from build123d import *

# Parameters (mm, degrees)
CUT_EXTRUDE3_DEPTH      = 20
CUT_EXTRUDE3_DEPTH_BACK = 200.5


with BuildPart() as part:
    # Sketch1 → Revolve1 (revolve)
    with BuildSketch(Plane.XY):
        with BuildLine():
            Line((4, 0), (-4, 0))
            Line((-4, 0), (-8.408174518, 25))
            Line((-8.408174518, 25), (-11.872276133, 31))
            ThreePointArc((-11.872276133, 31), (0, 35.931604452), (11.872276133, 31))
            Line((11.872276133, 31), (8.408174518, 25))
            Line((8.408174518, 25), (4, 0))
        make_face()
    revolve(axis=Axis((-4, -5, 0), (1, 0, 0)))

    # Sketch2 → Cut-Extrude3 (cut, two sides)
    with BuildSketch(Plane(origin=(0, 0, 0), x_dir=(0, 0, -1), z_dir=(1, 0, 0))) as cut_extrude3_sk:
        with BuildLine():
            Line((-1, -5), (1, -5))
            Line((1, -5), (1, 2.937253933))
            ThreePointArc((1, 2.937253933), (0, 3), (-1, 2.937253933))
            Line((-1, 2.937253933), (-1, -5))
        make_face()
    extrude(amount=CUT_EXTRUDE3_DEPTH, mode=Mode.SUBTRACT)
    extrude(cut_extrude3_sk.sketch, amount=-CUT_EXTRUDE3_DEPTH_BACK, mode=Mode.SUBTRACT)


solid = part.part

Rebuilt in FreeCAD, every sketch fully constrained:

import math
import FreeCAD as App
import Part
import Sketcher

V = App.Vector
Q = App.Units.Quantity

doc = App.newDocument("Part")
body = doc.addObject("PartDesign::Body", "Body")

sketch1 = body.newObject("Sketcher::SketchObject", "Sketch")
sketch1.AttachmentSupport = (doc.getObject("XY_Plane"), [""])
sketch1.MapMode = "FlatFace"
sketch1.addGeometry(Part.LineSegment(V(-4, 0, 0), V(4, 0, 0)), False)
sketch1.addGeometry(Part.LineSegment(V(4, 0, 0), V(8, 25, 0)), False)
sketch1.addGeometry(Part.LineSegment(V(8, 25, 0), V(12, 31, 0)), False)
sketch1.addGeometry(Part.ArcOfCircle(Part.Circle(V(0, 19, 0), V(0, 0, 1), 17), math.radians(45), math.radians(135)), False)
sketch1.addGeometry(Part.LineSegment(V(-12, 31, 0), V(-8, 25, 0)), False)
sketch1.addGeometry(Part.LineSegment(V(-8, 25, 0), V(-4, 0, 0)), False)
sketch1.addGeometry(Part.LineSegment(V(-12, -5, 0), V(12, -5, 0)), True)
sketch1.addConstraint(Sketcher.Constraint("Coincident", 0, 2, 1, 1))
sketch1.addConstraint(Sketcher.Constraint("Coincident", 1, 2, 2, 1))
sketch1.addConstraint(Sketcher.Constraint("Coincident", 2, 2, 3, 1))
sketch1.addConstraint(Sketcher.Constraint("Coincident", 3, 2, 4, 1))
sketch1.addConstraint(Sketcher.Constraint("Coincident", 4, 2, 5, 1))
sketch1.addConstraint(Sketcher.Constraint("Coincident", 5, 2, 0, 1))
sketch1.addConstraint(Sketcher.Constraint("Horizontal", 0))
sketch1.addConstraint(Sketcher.Constraint("Horizontal", 6))
sketch1.addConstraint(Sketcher.Constraint("Symmetric", 0, 2, 5, 2, -1, 1))
sketch1.addConstraint(Sketcher.Constraint("Symmetric", 2, 2, 3, 2, -2))
sketch1.addConstraint(Sketcher.Constraint("Symmetric", 1, 2, 4, 2, -2))
sketch1.addConstraint(Sketcher.Constraint("Vertical", 3, 2, 6, 1))
sketch1.addConstraint(Sketcher.Constraint("Vertical", 2, 2, 6, 2))
sketch1.addConstraint(Sketcher.Constraint("DistanceX", 0, 1, 0, 2, Q("8 mm")))
sketch1.addConstraint(Sketcher.Constraint("Angle", 1, Q("80 deg")))
sketch1.addConstraint(Sketcher.Constraint("Angle", 2, Q("60 deg")))
sketch1.addConstraint(Sketcher.Constraint("DistanceY", -1, 1, 1, 2, Q("25 mm")))
sketch1.addConstraint(Sketcher.Constraint("DistanceY", -1, 1, 2, 2, Q("31 mm")))
sketch1.addConstraint(Sketcher.Constraint("DistanceY", 6, 1, -1, 1, Q("5 mm")))
sketch1.addConstraint(Sketcher.Constraint("Radius", 3, Q("16.756379 mm")))
revolution = body.newObject("PartDesign::Revolution", "Revolution")
revolution.Profile = sketch1
revolution.ReferenceAxis = (sketch1, ["Axis0"])
revolution.Angle = 360

sketch2 = body.newObject("Sketcher::SketchObject", "Sketch001")
sketch2.AttachmentSupport = (doc.getObject("YZ_Plane"), [""])
sketch2.MapMode = "FlatFace"
sketch2.addGeometry(Part.LineSegment(V(-5, 1, 0), V(-5, -1, 0)), False)
sketch2.addGeometry(Part.LineSegment(V(-5, -1, 0), V(2.9, -1, 0)), False)
sketch2.addGeometry(Part.ArcOfCircle(Part.Circle(V(-5, 0, 0), V(0, 0, 1), 8), math.radians(-7.18), math.radians(7.18)), False)
sketch2.addGeometry(Part.LineSegment(V(2.9, 1, 0), V(-5, 1, 0)), False)
sketch2.addConstraint(Sketcher.Constraint("Coincident", 0, 2, 1, 1))
sketch2.addConstraint(Sketcher.Constraint("Coincident", 1, 2, 2, 1))
sketch2.addConstraint(Sketcher.Constraint("Coincident", 2, 2, 3, 1))
sketch2.addConstraint(Sketcher.Constraint("Coincident", 3, 2, 0, 1))
sketch2.addConstraint(Sketcher.Constraint("Vertical", 0))
sketch2.addConstraint(Sketcher.Constraint("Horizontal", 1))
sketch2.addConstraint(Sketcher.Constraint("Horizontal", 3))
sketch2.addConstraint(Sketcher.Constraint("Symmetric", 1, 2, 2, 2, -1))
sketch2.addConstraint(Sketcher.Constraint("Vertical", 2, 3, 0, 2))
sketch2.addConstraint(Sketcher.Constraint("Radius", 2, Q("8 mm")))
sketch2.addConstraint(Sketcher.Constraint("DistanceY", 0, 2, 0, 1, Q("2 mm")))
sketch2.addConstraint(Sketcher.Constraint("DistanceX", 2, 3, -1, 1, Q("5 mm")))
pocket1 = body.newObject("PartDesign::Pocket", "Pocket")
pocket1.Profile = sketch2
pocket1.Type = "ThroughAll"
pocket1.Midplane = True

doc.recompute()
